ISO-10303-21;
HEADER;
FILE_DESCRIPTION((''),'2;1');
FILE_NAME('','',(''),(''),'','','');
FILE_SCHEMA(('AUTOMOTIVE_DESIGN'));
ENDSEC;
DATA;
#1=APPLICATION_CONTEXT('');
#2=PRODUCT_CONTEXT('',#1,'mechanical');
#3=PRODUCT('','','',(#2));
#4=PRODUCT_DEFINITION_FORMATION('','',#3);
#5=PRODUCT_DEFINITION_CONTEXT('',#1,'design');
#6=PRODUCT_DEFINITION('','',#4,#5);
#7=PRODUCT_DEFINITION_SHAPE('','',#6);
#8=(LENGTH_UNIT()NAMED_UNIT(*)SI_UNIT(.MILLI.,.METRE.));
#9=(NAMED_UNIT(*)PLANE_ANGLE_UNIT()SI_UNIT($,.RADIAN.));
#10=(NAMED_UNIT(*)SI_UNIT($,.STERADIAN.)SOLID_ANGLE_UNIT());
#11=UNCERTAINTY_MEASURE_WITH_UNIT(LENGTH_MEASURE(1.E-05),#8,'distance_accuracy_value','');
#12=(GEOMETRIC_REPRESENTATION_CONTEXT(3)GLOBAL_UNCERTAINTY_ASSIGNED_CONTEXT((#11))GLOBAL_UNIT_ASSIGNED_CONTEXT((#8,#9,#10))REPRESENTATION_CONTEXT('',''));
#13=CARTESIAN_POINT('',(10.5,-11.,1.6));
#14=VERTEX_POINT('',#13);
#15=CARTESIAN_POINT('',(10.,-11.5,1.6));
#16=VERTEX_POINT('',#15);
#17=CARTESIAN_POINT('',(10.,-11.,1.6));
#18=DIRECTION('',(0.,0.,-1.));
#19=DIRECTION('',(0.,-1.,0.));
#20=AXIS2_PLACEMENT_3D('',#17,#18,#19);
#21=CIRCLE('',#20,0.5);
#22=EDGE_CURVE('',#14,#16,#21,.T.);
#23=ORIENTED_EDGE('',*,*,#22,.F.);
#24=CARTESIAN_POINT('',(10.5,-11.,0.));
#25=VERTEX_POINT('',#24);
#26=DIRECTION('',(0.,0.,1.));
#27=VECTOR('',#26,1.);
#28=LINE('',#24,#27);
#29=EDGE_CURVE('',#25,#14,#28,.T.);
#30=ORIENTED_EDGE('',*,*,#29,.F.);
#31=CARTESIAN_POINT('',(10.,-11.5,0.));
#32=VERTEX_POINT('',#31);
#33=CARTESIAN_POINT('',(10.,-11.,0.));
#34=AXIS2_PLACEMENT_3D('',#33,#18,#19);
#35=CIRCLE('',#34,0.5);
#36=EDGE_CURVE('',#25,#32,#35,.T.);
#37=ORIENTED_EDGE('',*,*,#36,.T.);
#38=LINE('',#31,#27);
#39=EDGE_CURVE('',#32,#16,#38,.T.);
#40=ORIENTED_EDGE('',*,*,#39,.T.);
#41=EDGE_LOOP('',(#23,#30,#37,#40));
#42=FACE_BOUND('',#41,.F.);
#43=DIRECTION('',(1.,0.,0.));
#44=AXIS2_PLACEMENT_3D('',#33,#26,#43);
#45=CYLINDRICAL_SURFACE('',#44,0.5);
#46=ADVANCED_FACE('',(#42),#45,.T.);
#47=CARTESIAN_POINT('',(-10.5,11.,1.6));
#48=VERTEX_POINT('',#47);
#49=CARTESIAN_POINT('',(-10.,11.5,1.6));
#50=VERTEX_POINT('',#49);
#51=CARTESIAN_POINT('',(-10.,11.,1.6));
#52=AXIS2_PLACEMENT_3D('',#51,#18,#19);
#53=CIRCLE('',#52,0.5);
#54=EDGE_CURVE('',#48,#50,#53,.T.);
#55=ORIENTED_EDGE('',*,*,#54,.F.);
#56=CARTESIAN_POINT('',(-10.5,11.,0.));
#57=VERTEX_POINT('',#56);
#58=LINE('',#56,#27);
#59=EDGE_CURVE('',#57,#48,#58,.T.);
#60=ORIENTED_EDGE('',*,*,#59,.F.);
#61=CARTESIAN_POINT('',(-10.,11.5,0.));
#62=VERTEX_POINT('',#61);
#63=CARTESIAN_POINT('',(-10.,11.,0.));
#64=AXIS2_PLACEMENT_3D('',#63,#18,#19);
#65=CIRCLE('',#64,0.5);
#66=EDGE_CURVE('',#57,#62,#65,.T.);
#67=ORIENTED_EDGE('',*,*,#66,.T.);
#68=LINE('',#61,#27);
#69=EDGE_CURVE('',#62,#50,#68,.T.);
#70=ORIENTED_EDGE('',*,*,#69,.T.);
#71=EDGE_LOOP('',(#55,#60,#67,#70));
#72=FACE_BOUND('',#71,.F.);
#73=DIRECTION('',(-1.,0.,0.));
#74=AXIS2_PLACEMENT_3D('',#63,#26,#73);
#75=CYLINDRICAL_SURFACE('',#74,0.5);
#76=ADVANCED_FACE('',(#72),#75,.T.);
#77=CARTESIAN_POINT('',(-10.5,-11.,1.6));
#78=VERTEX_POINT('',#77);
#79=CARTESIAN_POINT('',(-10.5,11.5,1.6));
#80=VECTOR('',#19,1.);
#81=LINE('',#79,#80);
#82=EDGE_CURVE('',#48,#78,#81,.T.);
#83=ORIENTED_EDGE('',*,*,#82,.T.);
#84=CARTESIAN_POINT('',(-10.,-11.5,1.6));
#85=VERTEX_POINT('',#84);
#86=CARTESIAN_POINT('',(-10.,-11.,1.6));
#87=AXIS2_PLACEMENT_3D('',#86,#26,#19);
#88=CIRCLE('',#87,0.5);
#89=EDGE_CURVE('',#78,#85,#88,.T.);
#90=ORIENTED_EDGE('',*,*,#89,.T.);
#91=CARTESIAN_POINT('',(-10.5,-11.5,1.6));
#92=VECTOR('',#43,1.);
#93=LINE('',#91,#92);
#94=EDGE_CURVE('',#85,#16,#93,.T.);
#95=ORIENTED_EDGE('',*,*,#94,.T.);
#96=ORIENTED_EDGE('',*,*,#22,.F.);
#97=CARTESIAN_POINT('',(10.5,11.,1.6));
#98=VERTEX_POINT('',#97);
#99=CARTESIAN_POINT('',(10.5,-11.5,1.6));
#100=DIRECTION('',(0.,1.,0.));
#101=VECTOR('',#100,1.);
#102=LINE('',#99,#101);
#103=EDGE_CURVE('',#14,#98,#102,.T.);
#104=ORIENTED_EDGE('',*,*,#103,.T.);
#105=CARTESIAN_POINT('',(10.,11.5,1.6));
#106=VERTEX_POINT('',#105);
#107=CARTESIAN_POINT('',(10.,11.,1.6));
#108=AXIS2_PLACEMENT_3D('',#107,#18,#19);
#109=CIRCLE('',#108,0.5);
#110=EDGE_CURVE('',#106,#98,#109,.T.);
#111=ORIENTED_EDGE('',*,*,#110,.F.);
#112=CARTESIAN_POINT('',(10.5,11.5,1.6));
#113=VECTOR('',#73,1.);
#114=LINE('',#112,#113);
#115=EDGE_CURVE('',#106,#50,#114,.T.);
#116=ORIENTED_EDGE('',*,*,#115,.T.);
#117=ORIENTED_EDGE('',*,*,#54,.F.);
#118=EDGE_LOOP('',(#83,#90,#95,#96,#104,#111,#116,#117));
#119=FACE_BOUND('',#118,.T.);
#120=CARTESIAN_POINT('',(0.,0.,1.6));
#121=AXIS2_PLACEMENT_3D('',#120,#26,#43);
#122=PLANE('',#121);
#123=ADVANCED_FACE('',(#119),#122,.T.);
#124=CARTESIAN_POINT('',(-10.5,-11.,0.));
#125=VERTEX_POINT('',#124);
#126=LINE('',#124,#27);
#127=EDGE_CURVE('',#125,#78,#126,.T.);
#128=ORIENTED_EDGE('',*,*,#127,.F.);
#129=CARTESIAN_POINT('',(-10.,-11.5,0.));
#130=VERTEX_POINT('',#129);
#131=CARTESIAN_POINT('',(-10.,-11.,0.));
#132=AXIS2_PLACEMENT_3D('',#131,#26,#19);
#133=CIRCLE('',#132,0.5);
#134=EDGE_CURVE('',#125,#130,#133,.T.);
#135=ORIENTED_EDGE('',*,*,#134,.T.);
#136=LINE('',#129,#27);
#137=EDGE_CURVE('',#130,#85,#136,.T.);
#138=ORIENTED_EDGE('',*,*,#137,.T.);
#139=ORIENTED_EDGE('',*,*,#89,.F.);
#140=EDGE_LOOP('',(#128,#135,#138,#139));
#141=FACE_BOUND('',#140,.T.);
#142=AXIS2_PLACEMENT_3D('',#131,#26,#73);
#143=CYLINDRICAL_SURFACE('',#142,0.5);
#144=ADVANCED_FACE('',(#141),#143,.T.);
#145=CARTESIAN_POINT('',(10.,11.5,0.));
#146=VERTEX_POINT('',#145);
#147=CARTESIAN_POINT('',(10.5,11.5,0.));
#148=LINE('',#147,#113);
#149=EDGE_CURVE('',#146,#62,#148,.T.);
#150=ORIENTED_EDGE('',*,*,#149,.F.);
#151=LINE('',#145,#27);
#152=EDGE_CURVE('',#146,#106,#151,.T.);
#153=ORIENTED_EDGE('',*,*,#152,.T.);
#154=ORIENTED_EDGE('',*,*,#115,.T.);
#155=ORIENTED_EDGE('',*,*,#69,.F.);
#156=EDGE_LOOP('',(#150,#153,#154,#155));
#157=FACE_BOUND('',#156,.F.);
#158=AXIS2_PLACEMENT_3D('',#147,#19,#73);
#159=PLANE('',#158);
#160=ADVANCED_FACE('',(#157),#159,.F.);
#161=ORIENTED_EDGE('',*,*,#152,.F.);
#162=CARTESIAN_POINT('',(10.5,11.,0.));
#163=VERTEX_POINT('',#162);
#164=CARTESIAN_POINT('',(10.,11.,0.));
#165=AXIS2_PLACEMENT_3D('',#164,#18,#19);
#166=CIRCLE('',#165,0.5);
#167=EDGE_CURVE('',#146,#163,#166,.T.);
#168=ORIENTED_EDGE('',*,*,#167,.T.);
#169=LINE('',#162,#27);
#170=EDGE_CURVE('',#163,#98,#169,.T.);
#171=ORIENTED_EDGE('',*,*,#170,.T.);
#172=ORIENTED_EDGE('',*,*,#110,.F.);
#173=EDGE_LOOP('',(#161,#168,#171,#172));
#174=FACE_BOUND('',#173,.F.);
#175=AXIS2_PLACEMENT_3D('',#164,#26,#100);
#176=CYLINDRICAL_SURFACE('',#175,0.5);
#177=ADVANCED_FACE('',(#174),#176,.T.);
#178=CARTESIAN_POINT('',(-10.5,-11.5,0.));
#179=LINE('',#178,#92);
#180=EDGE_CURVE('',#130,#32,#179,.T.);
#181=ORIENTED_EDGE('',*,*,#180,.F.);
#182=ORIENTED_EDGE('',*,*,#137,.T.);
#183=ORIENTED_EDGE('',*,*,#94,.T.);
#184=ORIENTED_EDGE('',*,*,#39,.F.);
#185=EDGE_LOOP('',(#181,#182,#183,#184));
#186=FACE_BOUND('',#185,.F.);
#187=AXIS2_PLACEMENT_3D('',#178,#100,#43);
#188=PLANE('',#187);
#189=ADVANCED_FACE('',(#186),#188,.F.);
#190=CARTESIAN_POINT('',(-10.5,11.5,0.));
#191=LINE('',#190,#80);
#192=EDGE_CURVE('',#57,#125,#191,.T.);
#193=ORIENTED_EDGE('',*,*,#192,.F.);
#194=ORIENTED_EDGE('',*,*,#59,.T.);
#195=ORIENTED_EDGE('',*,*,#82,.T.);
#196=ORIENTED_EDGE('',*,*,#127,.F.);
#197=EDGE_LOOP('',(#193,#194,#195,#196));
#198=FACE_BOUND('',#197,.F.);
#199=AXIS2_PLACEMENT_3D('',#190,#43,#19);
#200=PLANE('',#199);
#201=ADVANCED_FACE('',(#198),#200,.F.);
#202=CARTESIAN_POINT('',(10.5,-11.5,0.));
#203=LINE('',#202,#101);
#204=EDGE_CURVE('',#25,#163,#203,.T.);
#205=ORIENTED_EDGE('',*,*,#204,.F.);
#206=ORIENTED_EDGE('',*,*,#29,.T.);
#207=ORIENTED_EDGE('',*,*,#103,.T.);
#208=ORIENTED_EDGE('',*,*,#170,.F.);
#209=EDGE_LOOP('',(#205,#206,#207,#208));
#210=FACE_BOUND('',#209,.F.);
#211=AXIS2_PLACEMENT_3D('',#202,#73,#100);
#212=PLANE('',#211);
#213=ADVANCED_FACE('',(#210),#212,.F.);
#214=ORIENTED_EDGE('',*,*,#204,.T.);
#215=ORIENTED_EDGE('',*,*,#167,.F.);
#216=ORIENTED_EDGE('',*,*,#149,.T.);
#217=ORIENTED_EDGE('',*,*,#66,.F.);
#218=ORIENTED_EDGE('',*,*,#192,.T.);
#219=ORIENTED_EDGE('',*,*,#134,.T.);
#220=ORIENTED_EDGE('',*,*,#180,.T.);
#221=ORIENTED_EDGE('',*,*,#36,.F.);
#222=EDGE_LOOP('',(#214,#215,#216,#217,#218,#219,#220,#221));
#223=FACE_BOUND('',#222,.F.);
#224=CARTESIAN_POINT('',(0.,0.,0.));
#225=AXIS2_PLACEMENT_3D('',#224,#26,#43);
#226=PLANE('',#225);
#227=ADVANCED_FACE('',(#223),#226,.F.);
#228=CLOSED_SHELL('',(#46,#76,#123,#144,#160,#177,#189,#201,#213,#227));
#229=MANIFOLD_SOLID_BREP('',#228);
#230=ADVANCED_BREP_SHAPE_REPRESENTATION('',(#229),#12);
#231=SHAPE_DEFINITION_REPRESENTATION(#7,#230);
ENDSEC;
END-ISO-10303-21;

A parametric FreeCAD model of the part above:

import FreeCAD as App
import Part
import Sketcher
from FreeCAD import Vector
Q = App.Units.Quantity


def edges_at(feature, points):
    """Names of the edges that pass closest to the given points."""
    edges = feature.Shape.Edges
    near = lambda p: min(range(len(edges)), key=lambda i: edges[i].distToShape(Part.Vertex(*p))[0])
    return sorted({f"Edge{near(p) + 1}" for p in points})


def add_polygon(sketch, points):
    """Adds a closed chain of lines whose ends are joined by coincident constraints."""
    first, n = sketch.GeometryCount, len(points)
    for a, b in zip(points, points[1:] + points[:1]):
        sketch.addGeometry(Part.LineSegment(App.Vector(*a, 0), App.Vector(*b, 0)), False)
    for i in range(n):
        sketch.addConstraint(Sketcher.Constraint("Coincident", first + i, 2, first + (i + 1) % n, 1))

doc = App.newDocument("Part")
body = doc.addObject("PartDesign::Body", "Body")

sketch1 = body.newObject("Sketcher::SketchObject", "Sketch")
sketch1.AttachmentSupport = (doc.getObject("XY_Plane"), [""])
sketch1.MapMode = "FlatFace"
add_polygon(sketch1, [(-10, 12), (-10, -12), (10, -12), (10, 12)])
sketch1.addConstraint(Sketcher.Constraint("Vertical", 0))
sketch1.addConstraint(Sketcher.Constraint("Horizontal", 1))
sketch1.addConstraint(Sketcher.Constraint("Vertical", 2))
sketch1.addConstraint(Sketcher.Constraint("Horizontal", 3))
sketch1.addConstraint(Sketcher.Constraint("Symmetric", 0, 2, 2, 2, -1, 1))
sketch1.addConstraint(Sketcher.Constraint("DistanceX", 1, 1, 1, 2, Q("21 mm")))
sketch1.addConstraint(Sketcher.Constraint("DistanceY", 0, 2, 0, 1, Q("23 mm")))
pad1 = body.newObject("PartDesign::Pad", "Pad")
pad1.Profile = sketch1
pad1.Length = 1.6
doc.recompute()

fillet = body.newObject("PartDesign::Fillet", "Fillet")
fillet.Base = (pad1, edges_at(pad1, [
    (10.5, 11.5, 0.8),
    (10.5, -11.5, 0.8),
    (-10.5, -11.5, 0.8),
    (-10.5, 11.5, 0.8),
]))
fillet.Radius = 0.5

doc.recompute()
